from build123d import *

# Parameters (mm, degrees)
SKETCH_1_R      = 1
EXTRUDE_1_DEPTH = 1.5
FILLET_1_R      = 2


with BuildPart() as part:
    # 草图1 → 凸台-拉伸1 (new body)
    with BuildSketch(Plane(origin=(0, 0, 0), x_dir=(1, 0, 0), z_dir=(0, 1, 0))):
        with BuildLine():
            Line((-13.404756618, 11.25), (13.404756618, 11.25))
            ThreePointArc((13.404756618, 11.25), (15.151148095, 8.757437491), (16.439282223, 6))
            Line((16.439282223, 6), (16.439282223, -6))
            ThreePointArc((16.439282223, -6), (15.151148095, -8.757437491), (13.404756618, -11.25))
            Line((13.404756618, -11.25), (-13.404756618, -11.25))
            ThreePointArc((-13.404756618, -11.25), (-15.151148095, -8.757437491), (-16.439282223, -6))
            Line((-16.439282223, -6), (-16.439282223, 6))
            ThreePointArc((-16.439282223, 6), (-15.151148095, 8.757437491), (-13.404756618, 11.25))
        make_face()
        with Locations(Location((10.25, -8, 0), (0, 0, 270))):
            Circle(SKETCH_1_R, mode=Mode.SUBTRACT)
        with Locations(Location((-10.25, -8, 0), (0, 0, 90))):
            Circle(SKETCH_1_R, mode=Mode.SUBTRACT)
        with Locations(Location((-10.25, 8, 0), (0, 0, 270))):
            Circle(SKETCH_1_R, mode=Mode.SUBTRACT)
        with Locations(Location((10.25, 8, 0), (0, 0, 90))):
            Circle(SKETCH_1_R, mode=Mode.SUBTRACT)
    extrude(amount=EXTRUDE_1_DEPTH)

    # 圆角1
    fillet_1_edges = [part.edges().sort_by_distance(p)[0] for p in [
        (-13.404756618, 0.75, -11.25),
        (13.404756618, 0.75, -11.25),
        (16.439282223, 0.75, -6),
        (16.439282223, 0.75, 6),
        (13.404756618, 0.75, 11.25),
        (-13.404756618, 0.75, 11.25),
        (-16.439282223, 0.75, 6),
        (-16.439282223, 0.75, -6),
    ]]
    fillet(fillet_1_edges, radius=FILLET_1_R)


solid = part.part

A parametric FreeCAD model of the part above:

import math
import FreeCAD as App
import Part
import Sketcher

V = App.Vector
Q = App.Units.Quantity


def edges_at(feature, points):
    """Names of the edges that pass closest to the given points."""
    edges = feature.Shape.Edges
    near = lambda p: min(range(len(edges)), key=lambda i: edges[i].distToShape(Part.Vertex(*p))[0])
    return sorted({f"Edge{near(p) + 1}" for p in points})

doc = App.newDocument("Part")
body = doc.addObject("PartDesign::Body", "Body")

sketch1 = body.newObject("Sketcher::SketchObject", "Sketch")
sketch1.AttachmentSupport = (doc.getObject("XZ_Plane"), [""])
sketch1.MapMode = "FlatFace"
sketch1.addGeometry([
    Part.LineSegment(V(13.4, -11.2, 0), V(-13.4, -11.2, 0)),
    Part.ArcOfCircle(Part.Circle(V(0, 0, 0), V(0, 0, 1), 17.5), math.radians(-159.95), math.radians(-139.99)),
    Part.LineSegment(V(-16.4, -6, 0), V(-16.4, 6, 0)),
    Part.ArcOfCircle(Part.Circle(V(0, 0, 0), V(0, 0, 1), 17.5), math.radians(139.99), math.radians(159.95)),
    Part.LineSegment(V(-13.4, 11.2, 0), V(13.4, 11.2, 0)),
    Part.ArcOfCircle(Part.Circle(V(0, 0, 0), V(0, 0, 1), 17.5), math.radians(20.05), math.radians(40.01)),
    Part.LineSegment(V(16.4, 6, 0), V(16.4, -6, 0)),
    Part.ArcOfCircle(Part.Circle(V(0, 0, 0), V(0, 0, 1), 17.5), math.radians(-40.01), math.radians(-20.05)),
    Part.Circle(V(10.2, 8, 0), V(0, 0, 1), 1),
    Part.Circle(V(-10.2, 8, 0), V(0, 0, 1), 1),
    Part.Circle(V(10.2, -8, 0), V(0, 0, 1), 1),
    Part.Circle(V(-10.2, -8, 0), V(0, 0, 1), 1),
], False)
sketch1.addConstraint([
    Sketcher.Constraint("Coincident", 0, 2, 1, 2),
    Sketcher.Constraint("Coincident", 1, 1, 2, 1),
    Sketcher.Constraint("Coincident", 2, 2, 3, 2),
    Sketcher.Constraint("Coincident", 3, 1, 4, 1),
    Sketcher.Constraint("Coincident", 4, 2, 5, 2),
    Sketcher.Constraint("Coincident", 5, 1, 6, 1),
    Sketcher.Constraint("Coincident", 6, 2, 7, 2),
    Sketcher.Constraint("Coincident", 7, 1, 0, 1),
    Sketcher.Constraint("Horizontal", 0),
    Sketcher.Constraint("Vertical", 2),
    Sketcher.Constraint("Horizontal", 4),
    Sketcher.Constraint("Vertical", 6),
    Sketcher.Constraint("Coincident", 1, 3, -1, 1),
    Sketcher.Constraint("Coincident", 3, 3, -1, 1),
    Sketcher.Constraint("Coincident", 5, 3, -1, 1),
    Sketcher.Constraint("Coincident", 7, 3, -1, 1),
    Sketcher.Constraint("Equal", 1, 3),
    Sketcher.Constraint("Equal", 3, 5),
    Sketcher.Constraint("Equal", 5, 7),
    Sketcher.Constraint("Equal", 8, 9),
    Sketcher.Constraint("Equal", 9, 10),
    Sketcher.Constraint("Equal", 10, 11),
    Sketcher.Constraint("Symmetric", 9, 3, 10, 3, -1, 1),
    Sketcher.Constraint("Symmetric", 8, 3, 11, 3, -1, 1),
    Sketcher.Constraint("Symmetric", 8, 3, 9, 3, -2),
    Sketcher.Constraint("Horizontal", 2, 2, 5, 1),
    Sketcher.Constraint("Vertical", 0, 2, 3, 1),
    Sketcher.Constraint("Diameter", 8, Q("2 mm")),
    Sketcher.Constraint("Radius", 1, Q("17.5 mm")),
    Sketcher.Constraint("DistanceY", 2, 1, 2, 2, Q("12 mm")),
    Sketcher.Constraint("DistanceY", -1, 1, 8, 3, Q("8 mm")),
    Sketcher.Constraint("DistanceX", 9, 3, 8, 3, Q("20.5 mm")),
    Sketcher.Constraint("DistanceY", 0, 2, -1, 1, Q("11.25 mm")),
])
pad1 = body.newObject("PartDesign::Pad", "Pad")
pad1.Profile = sketch1
pad1.Length = 1.5
pad1.Reversed = True
doc.recompute()

fillet = body.newObject("PartDesign::Fillet", "Fillet")
fillet.Base = (pad1, edges_at(pad1, [
    (-13.405, 0.75, -11.25),
    (13.405, 0.75, -11.25),
    (16.439, 0.75, -6),
    (16.439, 0.75, 6),
    (13.405, 0.75, 11.25),
    (-13.405, 0.75, 11.25),
    (-16.439, 0.75, 6),
    (-16.439, 0.75, -6),
]))
fillet.Radius = 2

doc.recompute()
